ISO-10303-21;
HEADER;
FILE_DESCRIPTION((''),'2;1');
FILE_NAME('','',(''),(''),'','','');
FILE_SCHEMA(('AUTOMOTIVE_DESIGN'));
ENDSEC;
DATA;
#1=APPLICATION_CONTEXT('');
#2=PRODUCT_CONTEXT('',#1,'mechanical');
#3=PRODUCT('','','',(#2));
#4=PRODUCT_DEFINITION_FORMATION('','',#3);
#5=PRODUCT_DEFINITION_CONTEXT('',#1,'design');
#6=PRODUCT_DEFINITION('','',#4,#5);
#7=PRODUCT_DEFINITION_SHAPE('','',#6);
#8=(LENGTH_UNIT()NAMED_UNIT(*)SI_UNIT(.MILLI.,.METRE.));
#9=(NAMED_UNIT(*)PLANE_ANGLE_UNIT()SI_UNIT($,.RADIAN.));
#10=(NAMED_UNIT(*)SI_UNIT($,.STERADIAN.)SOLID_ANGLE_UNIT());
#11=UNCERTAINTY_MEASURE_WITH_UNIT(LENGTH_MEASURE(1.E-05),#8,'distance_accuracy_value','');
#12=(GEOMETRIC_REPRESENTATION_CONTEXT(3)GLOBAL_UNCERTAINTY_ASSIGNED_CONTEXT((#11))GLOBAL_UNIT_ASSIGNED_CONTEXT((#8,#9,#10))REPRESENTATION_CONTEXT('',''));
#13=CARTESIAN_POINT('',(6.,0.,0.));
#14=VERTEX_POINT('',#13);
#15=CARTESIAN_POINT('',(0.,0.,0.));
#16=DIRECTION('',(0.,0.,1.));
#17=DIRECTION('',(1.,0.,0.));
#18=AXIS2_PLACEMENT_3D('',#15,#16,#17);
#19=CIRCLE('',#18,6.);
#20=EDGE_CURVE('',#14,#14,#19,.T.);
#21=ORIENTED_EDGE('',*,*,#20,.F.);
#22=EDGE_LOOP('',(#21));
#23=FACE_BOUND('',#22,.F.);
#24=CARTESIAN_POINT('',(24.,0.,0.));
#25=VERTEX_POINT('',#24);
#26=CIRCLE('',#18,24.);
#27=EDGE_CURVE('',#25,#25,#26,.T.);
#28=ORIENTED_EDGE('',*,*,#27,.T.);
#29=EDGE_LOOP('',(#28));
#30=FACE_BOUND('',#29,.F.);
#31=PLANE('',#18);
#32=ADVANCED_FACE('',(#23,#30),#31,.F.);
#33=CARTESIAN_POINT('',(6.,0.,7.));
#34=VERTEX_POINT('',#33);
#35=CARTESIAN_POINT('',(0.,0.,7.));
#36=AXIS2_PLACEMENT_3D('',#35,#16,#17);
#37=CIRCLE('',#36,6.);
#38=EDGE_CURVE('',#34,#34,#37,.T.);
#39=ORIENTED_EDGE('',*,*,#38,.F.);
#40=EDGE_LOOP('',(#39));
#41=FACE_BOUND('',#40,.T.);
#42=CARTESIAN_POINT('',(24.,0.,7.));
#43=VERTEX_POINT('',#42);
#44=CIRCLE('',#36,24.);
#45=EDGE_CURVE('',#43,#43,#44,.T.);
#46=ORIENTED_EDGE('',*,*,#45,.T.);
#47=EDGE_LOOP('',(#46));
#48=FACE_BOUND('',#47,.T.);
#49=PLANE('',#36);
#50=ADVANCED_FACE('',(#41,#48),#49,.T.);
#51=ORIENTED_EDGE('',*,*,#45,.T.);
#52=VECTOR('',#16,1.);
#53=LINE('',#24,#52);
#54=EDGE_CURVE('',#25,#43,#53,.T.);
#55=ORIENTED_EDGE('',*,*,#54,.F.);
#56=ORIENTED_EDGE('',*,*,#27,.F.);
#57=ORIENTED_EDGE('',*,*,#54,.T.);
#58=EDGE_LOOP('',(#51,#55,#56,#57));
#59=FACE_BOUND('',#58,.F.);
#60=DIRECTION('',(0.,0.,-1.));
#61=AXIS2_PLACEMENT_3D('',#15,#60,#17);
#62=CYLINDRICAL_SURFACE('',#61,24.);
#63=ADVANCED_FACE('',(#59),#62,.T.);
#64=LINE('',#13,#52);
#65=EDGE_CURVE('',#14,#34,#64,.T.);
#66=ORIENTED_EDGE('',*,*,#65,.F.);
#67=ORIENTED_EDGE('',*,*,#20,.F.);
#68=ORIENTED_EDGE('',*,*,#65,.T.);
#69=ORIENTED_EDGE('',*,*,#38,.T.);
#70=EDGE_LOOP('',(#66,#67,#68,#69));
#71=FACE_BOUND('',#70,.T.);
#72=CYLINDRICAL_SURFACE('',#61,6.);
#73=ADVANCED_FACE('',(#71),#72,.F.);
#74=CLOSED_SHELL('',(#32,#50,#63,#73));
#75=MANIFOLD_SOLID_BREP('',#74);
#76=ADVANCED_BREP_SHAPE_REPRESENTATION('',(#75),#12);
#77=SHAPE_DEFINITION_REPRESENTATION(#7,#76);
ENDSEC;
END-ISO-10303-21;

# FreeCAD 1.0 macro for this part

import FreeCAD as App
import Part
import Sketcher
from FreeCAD import Vector

doc = App.newDocument("Part")
body = doc.addObject("PartDesign::Body", "Body")

# Sketch on XY plane
sketch1 = body.newObject("Sketcher::SketchObject", "Sketch")
sketch1.AttachmentSupport = (doc.getObject("XY_Plane"), [""])
sketch1.MapMode = "FlatFace"
sketch1.addGeometry([
    Part.Circle(Vector(0, 0, 0), Vector(0, 0, 1), 24),
    Part.Circle(Vector(0, 0, 0), Vector(0, 0, 1), 6),
], False)
sketch1.addConstraint([
    Sketcher.Constraint("Coincident", 0, 3, -1, 1),
    Sketcher.Constraint("Coincident", 1, 3, -1, 1),
    Sketcher.Constraint("Diameter", 0, 48.0),
    Sketcher.Constraint("Diameter", 1, 12.0),
])
pad1 = body.newObject("PartDesign::Pad", "Pad")
pad1.Profile = sketch1
pad1.Length = 7

doc.recompute()
